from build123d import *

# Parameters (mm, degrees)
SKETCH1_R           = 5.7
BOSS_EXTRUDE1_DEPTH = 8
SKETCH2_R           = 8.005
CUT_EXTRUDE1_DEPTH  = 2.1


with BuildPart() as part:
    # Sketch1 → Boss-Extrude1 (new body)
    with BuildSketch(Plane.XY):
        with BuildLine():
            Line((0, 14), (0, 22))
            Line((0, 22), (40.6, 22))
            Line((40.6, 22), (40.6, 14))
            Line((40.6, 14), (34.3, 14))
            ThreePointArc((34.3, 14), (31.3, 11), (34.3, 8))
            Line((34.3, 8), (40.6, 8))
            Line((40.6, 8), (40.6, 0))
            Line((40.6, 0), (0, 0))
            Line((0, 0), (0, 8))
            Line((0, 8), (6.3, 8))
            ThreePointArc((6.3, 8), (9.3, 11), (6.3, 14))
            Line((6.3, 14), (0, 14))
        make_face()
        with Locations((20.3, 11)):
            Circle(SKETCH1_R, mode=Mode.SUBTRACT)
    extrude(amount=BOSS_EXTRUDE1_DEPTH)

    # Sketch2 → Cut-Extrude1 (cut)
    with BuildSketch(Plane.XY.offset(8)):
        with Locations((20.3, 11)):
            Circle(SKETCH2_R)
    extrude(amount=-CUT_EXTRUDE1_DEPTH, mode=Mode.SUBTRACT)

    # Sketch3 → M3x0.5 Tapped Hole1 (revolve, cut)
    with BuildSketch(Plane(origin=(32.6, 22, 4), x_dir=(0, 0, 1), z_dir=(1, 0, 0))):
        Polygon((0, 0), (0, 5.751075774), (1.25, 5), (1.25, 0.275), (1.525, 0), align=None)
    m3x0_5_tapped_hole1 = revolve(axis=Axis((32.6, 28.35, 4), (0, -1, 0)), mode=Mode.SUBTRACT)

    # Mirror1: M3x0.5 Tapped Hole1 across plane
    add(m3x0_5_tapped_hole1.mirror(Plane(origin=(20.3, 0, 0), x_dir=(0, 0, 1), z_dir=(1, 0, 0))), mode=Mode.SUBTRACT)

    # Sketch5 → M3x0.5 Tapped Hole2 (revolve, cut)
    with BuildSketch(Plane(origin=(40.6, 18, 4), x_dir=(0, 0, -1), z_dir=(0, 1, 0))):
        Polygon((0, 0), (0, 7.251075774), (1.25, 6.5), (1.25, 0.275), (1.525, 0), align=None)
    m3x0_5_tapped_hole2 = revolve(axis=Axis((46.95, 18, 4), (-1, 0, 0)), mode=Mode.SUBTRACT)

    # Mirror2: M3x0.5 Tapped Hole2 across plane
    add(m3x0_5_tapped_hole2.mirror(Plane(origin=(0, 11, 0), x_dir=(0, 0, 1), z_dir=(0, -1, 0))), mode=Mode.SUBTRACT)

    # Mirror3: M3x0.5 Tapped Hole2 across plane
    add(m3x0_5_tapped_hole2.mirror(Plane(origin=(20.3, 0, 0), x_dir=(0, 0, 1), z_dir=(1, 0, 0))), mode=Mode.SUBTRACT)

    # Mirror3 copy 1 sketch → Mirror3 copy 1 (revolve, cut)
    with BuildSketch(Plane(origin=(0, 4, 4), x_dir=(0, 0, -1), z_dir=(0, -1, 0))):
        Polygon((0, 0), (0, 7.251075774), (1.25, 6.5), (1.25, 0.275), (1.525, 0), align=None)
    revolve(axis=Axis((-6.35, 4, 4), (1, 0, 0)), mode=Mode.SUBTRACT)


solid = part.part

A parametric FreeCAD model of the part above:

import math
import FreeCAD as App
import Part
import Sketcher
from FreeCAD import Vector
Q = App.Units.Quantity

doc = App.newDocument("Part")
body = doc.addObject("PartDesign::Body", "Body")

sketch1 = body.newObject("Sketcher::SketchObject", "Sketch")
sketch1.AttachmentSupport = (doc.getObject("XY_Plane"), [""])
sketch1.MapMode = "FlatFace"
sketch1.addGeometry([
    Part.LineSegment(Vector(0, 22, 0), Vector(0, 14, 0)),
    Part.LineSegment(Vector(0, 14, 0), Vector(6.3, 14, 0)),
    Part.ArcOfCircle(Part.Circle(Vector(6.3, 11, 0), Vector(0, 0, 1), 3), math.radians(-90), math.radians(90)),
    Part.LineSegment(Vector(6.3, 8, 0), Vector(0, 8, 0)),
    Part.LineSegment(Vector(0, 8, 0), Vector(0, 0, 0)),
    Part.LineSegment(Vector(0, 0, 0), Vector(40.6, 0, 0)),
    Part.LineSegment(Vector(40.6, 0, 0), Vector(40.6, 8, 0)),
    Part.LineSegment(Vector(40.6, 8, 0), Vector(34.3, 8, 0)),
    Part.ArcOfCircle(Part.Circle(Vector(34.3, 11, 0), Vector(0, 0, 1), 3), math.radians(90), math.radians(270)),
    Part.LineSegment(Vector(34.3, 14, 0), Vector(40.6, 14, 0)),
    Part.LineSegment(Vector(40.6, 14, 0), Vector(40.6, 22, 0)),
    Part.LineSegment(Vector(40.6, 22, 0), Vector(0, 22, 0)),
    Part.Circle(Vector(20.3, 11, 0), Vector(0, 0, 1), 5.7),
], False)
sketch1.addConstraint([
    Sketcher.Constraint("Coincident", 0, 2, 1, 1),
    Sketcher.Constraint("Tangent", 1, 2, 2, 2),
    Sketcher.Constraint("Tangent", 2, 1, 3, 1),
    Sketcher.Constraint("Coincident", 3, 2, 4, 1),
    Sketcher.Constraint("Coincident", 4, 2, 5, 1),
    Sketcher.Constraint("Coincident", 5, 2, 6, 1),
    Sketcher.Constraint("Coincident", 6, 2, 7, 1),
    Sketcher.Constraint("Tangent", 7, 2, 8, 2),
    Sketcher.Constraint("Tangent", 8, 1, 9, 1),
    Sketcher.Constraint("Coincident", 9, 2, 10, 1),
    Sketcher.Constraint("Coincident", 10, 2, 11, 1),
    Sketcher.Constraint("Coincident", 11, 2, 0, 1),
    Sketcher.Constraint("Vertical", 0),
    Sketcher.Constraint("Horizontal", 1),
    Sketcher.Constraint("Horizontal", 3),
    Sketcher.Constraint("Vertical", 4),
    Sketcher.Constraint("Horizontal", 5),
    Sketcher.Constraint("Vertical", 6),
    Sketcher.Constraint("Horizontal", 7),
    Sketcher.Constraint("Horizontal", 9),
    Sketcher.Constraint("Vertical", 10),
    Sketcher.Constraint("Horizontal", 11),
    Sketcher.Constraint("Coincident", 4, 2, -1, 1),
    Sketcher.Constraint("Equal", 2, 8),
    Sketcher.Constraint("PointOnObject", 0, 2, -2),
    Sketcher.Constraint("Horizontal", 2, 3, 8, 3),
    Sketcher.Constraint("Horizontal", 8, 3, 12, 3),
    Sketcher.Constraint("Vertical", 6, 2, 9, 2),
    Sketcher.Constraint("Equal", 3, 7),
    Sketcher.Constraint("Equal", 0, 4),
    Sketcher.Constraint("Radius", 2, Q("3 mm")),
    Sketcher.Constraint("Diameter", 12, Q("11.4 mm")),
    Sketcher.Constraint("DistanceY", 0, 2, 0, 1, Q("8 mm")),
    Sketcher.Constraint("DistanceX", 1, 1, 1, 2, Q("6.3 mm")),
    Sketcher.Constraint("DistanceX", 5, 1, 5, 2, Q("40.6 mm")),
    Sketcher.Constraint("DistanceX", 12, 3, 8, 3, Q("14 mm")),
])
pad1 = body.newObject("PartDesign::Pad", "Pad")
pad1.Profile = sketch1
pad1.Length = 8

sketch2 = body.newObject("Sketcher::SketchObject", "Sketch001")
sketch2.AttachmentSupport = (doc.getObject("XY_Plane"), [""])
sketch2.MapMode = "FlatFace"
sketch2.AttachmentOffset = App.Placement(Vector(0, 0, 8), App.Rotation())
sketch2.addGeometry(Part.Circle(Vector(20, 11, 0), Vector(0, 0, 1), 8), False)
sketch2.addConstraint([
    Sketcher.Constraint("Diameter", 0, Q("16.01 mm")),
    Sketcher.Constraint("DistanceY", -1, 1, 0, 3, Q("11 mm")),
    Sketcher.Constraint("DistanceX", -1, 1, 0, 3, Q("20.3 mm")),
])
pocket1 = body.newObject("PartDesign::Pocket", "Pocket")
pocket1.Profile = sketch2
pocket1.Length = 2.1

sketch3 = body.newObject("Sketcher::SketchObject", "Sketch002")
sketch3.AttachmentSupport = (doc.getObject("YZ_Plane"), [""])
sketch3.MapMode = "FlatFace"
sketch3.AttachmentOffset = App.Placement(Vector(0, 0, 32.6), App.Rotation())
sketch3.addGeometry([
    Part.LineSegment(Vector(16.25, 4, 0), Vector(22, 4, 0)),
    Part.LineSegment(Vector(22, 4, 0), Vector(22, 5.53, 0)),
    Part.LineSegment(Vector(22, 5.53, 0), Vector(21.73, 5.25, 0)),
    Part.LineSegment(Vector(21.73, 5.25, 0), Vector(17, 5.25, 0)),
    Part.LineSegment(Vector(17, 5.25, 0), Vector(16.25, 4, 0)),
], False)
sketch3.addGeometry(Part.LineSegment(Vector(22, 4, 0), Vector(16.25, 4, 0)), True)
sketch3.addConstraint([
    Sketcher.Constraint("Coincident", 0, 2, 1, 1),
    Sketcher.Constraint("Coincident", 1, 2, 2, 1),
    Sketcher.Constraint("Coincident", 2, 2, 3, 1),
    Sketcher.Constraint("Coincident", 3, 2, 4, 1),
    Sketcher.Constraint("Coincident", 4, 2, 0, 1),
    Sketcher.Constraint("Horizontal", 0),
    Sketcher.Constraint("Vertical", 1),
    Sketcher.Constraint("Horizontal", 3),
    Sketcher.Constraint("Horizontal", 5),
    Sketcher.Constraint("Coincident", 5, 1, 0, 2),
    Sketcher.Constraint("Equal", 0, 5),
    Sketcher.Constraint("Angle", 2, Q("-135 deg")),
    Sketcher.Constraint("Angle", 4, Q("-121 deg")),
    Sketcher.Constraint("DistanceX", -1, 1, 0, 2, Q("22 mm")),
    Sketcher.Constraint("DistanceY", -1, 1, 0, 2, Q("4 mm")),
    Sketcher.Constraint("DistanceX", -1, 1, 3, 2, Q("17 mm")),
    Sketcher.Constraint("DistanceX", 3, 2, 3, 1, Q("4.725 mm")),
    Sketcher.Constraint("DistanceY", 1, 1, 1, 2, Q("1.525 mm")),
])
groove = body.newObject("PartDesign::Groove", "Groove")
groove.Profile = sketch3
groove.ReferenceAxis = (sketch3, ["Axis0"])
groove.Angle = 360
doc.recompute()

datumplane = body.newObject("PartDesign::Plane", "DatumPlane")
datumplane.AttachmentSupport = (doc.getObject("YZ_Plane"), [""])
datumplane.MapMode = "FlatFace"
datumplane.AttachmentOffset = App.Placement(Vector(0, 0, 20.3), App.Rotation())
mirrored = body.newObject("PartDesign::Mirrored", "Mirrored")
mirrored.Originals = [groove]
mirrored.MirrorPlane = (datumplane, [""])
body.Tip = mirrored

sketch4 = body.newObject("Sketcher::SketchObject", "Sketch003")
sketch4.AttachmentSupport = (doc.getObject("XZ_Plane"), [""])
sketch4.MapMode = "FlatFace"
sketch4.AttachmentOffset = App.Placement(Vector(0, 0, -18), App.Rotation())
sketch4.addGeometry([
    Part.LineSegment(Vector(33.35, 4, 0), Vector(40.6, 4, 0)),
    Part.LineSegment(Vector(40.6, 4, 0), Vector(40.6, 2.48, 0)),
    Part.LineSegment(Vector(40.6, 2.48, 0), Vector(40.33, 2.75, 0)),
    Part.LineSegment(Vector(40.33, 2.75, 0), Vector(34.1, 2.75, 0)),
    Part.LineSegment(Vector(34.1, 2.75, 0), Vector(33.35, 4, 0)),
], False)
sketch4.addGeometry(Part.LineSegment(Vector(40.6, 4, 0), Vector(33.35, 4, 0)), True)
sketch4.addConstraint([
    Sketcher.Constraint("Coincident", 0, 2, 1, 1),
    Sketcher.Constraint("Coincident", 1, 2, 2, 1),
    Sketcher.Constraint("Coincident", 2, 2, 3, 1),
    Sketcher.Constraint("Coincident", 3, 2, 4, 1),
    Sketcher.Constraint("Coincident", 4, 2, 0, 1),
    Sketcher.Constraint("Horizontal", 0),
    Sketcher.Constraint("Vertical", 1),
    Sketcher.Constraint("Horizontal", 3),
    Sketcher.Constraint("Horizontal", 5),
    Sketcher.Constraint("Coincident", 5, 1, 0, 2),
    Sketcher.Constraint("Equal", 0, 5),
    Sketcher.Constraint("Angle", 2, Q("135 deg")),
    Sketcher.Constraint("Angle", 4, Q("121 deg")),
    Sketcher.Constraint("DistanceY", -1, 1, 0, 2, Q("4 mm")),
    Sketcher.Constraint("DistanceX", -1, 1, 0, 2, Q("40.6 mm")),
    Sketcher.Constraint("DistanceX", -1, 1, 3, 2, Q("34.1 mm")),
    Sketcher.Constraint("DistanceX", 3, 2, 3, 1, Q("6.225 mm")),
    Sketcher.Constraint("DistanceY", 1, 2, 1, 1, Q("1.525 mm")),
])
groove2 = body.newObject("PartDesign::Groove", "Groove001")
groove2.Profile = sketch4
groove2.ReferenceAxis = (sketch4, ["Axis0"])
groove2.Angle = 360
doc.recompute()

datumplane2 = body.newObject("PartDesign::Plane", "DatumPlane001")
datumplane2.AttachmentSupport = (doc.getObject("XZ_Plane"), [""])
datumplane2.MapMode = "FlatFace"
datumplane2.AttachmentOffset = App.Placement(Vector(0, 0, -11), App.Rotation())
mirrored2 = body.newObject("PartDesign::Mirrored", "Mirrored001")
mirrored2.Originals = [groove2]
mirrored2.MirrorPlane = (datumplane2, [""])
body.Tip = mirrored2
doc.recompute()

datumplane3 = body.newObject("PartDesign::Plane", "DatumPlane002")
datumplane3.AttachmentSupport = (doc.getObject("YZ_Plane"), [""])
datumplane3.MapMode = "FlatFace"
datumplane3.AttachmentOffset = App.Placement(Vector(0, 0, 20.3), App.Rotation())
mirrored3 = body.newObject("PartDesign::Mirrored", "Mirrored002")
mirrored3.Originals = [groove2]
mirrored3.MirrorPlane = (datumplane3, [""])
body.Tip = mirrored3

sketch5 = body.newObject("Sketcher::SketchObject", "Sketch004")
sketch5.AttachmentSupport = (doc.getObject("XZ_Plane"), [""])
sketch5.MapMode = "FlatFace"
sketch5.AttachmentOffset = App.Placement(Vector(0, 0, -4), App.Rotation())
sketch5.addGeometry([
    Part.LineSegment(Vector(7.25, 4, 0), Vector(0, 4, 0)),
    Part.LineSegment(Vector(0, 4, 0), Vector(0, 2.48, 0)),
    Part.LineSegment(Vector(0, 2.48, 0), Vector(0.28, 2.75, 0)),
    Part.LineSegment(Vector(0.28, 2.75, 0), Vector(6.5, 2.75, 0)),
    Part.LineSegment(Vector(6.5, 2.75, 0), Vector(7.25, 4, 0)),
], False)
sketch5.addGeometry(Part.LineSegment(Vector(0, 4, 0), Vector(7.25, 4, 0)), True)
sketch5.addConstraint([
    Sketcher.Constraint("Coincident", 0, 2, 1, 1),
    Sketcher.Constraint("Coincident", 1, 2, 2, 1),
    Sketcher.Constraint("Coincident", 2, 2, 3, 1),
    Sketcher.Constraint("Coincident", 3, 2, 4, 1),
    Sketcher.Constraint("Coincident", 4, 2, 0, 1),
    Sketcher.Constraint("Horizontal", 0),
    Sketcher.Constraint("Vertical", 1),
    Sketcher.Constraint("Horizontal", 3),
    Sketcher.Constraint("Horizontal", 5),
    Sketcher.Constraint("Coincident", 5, 1, 0, 2),
    Sketcher.Constraint("PointOnObject", 0, 2, -2),
    Sketcher.Constraint("Equal", 0, 5),
    Sketcher.Constraint("Angle", 2, Q("45 deg")),
    Sketcher.Constraint("Angle", 4, Q("59 deg")),
    Sketcher.Constraint("DistanceY", -1, 1, 0, 2, Q("4 mm")),
    Sketcher.Constraint("DistanceX", -1, 1, 3, 2, Q("6.5 mm")),
    Sketcher.Constraint("DistanceX", 3, 1, 3, 2, Q("6.225 mm")),
    Sketcher.Constraint("DistanceY", 1, 2, 1, 1, Q("1.525 mm")),
])
groove3 = body.newObject("PartDesign::Groove", "Groove002")
groove3.Profile = sketch5
groove3.ReferenceAxis = (sketch5, ["Axis0"])
groove3.Angle = 360

doc.recompute()
